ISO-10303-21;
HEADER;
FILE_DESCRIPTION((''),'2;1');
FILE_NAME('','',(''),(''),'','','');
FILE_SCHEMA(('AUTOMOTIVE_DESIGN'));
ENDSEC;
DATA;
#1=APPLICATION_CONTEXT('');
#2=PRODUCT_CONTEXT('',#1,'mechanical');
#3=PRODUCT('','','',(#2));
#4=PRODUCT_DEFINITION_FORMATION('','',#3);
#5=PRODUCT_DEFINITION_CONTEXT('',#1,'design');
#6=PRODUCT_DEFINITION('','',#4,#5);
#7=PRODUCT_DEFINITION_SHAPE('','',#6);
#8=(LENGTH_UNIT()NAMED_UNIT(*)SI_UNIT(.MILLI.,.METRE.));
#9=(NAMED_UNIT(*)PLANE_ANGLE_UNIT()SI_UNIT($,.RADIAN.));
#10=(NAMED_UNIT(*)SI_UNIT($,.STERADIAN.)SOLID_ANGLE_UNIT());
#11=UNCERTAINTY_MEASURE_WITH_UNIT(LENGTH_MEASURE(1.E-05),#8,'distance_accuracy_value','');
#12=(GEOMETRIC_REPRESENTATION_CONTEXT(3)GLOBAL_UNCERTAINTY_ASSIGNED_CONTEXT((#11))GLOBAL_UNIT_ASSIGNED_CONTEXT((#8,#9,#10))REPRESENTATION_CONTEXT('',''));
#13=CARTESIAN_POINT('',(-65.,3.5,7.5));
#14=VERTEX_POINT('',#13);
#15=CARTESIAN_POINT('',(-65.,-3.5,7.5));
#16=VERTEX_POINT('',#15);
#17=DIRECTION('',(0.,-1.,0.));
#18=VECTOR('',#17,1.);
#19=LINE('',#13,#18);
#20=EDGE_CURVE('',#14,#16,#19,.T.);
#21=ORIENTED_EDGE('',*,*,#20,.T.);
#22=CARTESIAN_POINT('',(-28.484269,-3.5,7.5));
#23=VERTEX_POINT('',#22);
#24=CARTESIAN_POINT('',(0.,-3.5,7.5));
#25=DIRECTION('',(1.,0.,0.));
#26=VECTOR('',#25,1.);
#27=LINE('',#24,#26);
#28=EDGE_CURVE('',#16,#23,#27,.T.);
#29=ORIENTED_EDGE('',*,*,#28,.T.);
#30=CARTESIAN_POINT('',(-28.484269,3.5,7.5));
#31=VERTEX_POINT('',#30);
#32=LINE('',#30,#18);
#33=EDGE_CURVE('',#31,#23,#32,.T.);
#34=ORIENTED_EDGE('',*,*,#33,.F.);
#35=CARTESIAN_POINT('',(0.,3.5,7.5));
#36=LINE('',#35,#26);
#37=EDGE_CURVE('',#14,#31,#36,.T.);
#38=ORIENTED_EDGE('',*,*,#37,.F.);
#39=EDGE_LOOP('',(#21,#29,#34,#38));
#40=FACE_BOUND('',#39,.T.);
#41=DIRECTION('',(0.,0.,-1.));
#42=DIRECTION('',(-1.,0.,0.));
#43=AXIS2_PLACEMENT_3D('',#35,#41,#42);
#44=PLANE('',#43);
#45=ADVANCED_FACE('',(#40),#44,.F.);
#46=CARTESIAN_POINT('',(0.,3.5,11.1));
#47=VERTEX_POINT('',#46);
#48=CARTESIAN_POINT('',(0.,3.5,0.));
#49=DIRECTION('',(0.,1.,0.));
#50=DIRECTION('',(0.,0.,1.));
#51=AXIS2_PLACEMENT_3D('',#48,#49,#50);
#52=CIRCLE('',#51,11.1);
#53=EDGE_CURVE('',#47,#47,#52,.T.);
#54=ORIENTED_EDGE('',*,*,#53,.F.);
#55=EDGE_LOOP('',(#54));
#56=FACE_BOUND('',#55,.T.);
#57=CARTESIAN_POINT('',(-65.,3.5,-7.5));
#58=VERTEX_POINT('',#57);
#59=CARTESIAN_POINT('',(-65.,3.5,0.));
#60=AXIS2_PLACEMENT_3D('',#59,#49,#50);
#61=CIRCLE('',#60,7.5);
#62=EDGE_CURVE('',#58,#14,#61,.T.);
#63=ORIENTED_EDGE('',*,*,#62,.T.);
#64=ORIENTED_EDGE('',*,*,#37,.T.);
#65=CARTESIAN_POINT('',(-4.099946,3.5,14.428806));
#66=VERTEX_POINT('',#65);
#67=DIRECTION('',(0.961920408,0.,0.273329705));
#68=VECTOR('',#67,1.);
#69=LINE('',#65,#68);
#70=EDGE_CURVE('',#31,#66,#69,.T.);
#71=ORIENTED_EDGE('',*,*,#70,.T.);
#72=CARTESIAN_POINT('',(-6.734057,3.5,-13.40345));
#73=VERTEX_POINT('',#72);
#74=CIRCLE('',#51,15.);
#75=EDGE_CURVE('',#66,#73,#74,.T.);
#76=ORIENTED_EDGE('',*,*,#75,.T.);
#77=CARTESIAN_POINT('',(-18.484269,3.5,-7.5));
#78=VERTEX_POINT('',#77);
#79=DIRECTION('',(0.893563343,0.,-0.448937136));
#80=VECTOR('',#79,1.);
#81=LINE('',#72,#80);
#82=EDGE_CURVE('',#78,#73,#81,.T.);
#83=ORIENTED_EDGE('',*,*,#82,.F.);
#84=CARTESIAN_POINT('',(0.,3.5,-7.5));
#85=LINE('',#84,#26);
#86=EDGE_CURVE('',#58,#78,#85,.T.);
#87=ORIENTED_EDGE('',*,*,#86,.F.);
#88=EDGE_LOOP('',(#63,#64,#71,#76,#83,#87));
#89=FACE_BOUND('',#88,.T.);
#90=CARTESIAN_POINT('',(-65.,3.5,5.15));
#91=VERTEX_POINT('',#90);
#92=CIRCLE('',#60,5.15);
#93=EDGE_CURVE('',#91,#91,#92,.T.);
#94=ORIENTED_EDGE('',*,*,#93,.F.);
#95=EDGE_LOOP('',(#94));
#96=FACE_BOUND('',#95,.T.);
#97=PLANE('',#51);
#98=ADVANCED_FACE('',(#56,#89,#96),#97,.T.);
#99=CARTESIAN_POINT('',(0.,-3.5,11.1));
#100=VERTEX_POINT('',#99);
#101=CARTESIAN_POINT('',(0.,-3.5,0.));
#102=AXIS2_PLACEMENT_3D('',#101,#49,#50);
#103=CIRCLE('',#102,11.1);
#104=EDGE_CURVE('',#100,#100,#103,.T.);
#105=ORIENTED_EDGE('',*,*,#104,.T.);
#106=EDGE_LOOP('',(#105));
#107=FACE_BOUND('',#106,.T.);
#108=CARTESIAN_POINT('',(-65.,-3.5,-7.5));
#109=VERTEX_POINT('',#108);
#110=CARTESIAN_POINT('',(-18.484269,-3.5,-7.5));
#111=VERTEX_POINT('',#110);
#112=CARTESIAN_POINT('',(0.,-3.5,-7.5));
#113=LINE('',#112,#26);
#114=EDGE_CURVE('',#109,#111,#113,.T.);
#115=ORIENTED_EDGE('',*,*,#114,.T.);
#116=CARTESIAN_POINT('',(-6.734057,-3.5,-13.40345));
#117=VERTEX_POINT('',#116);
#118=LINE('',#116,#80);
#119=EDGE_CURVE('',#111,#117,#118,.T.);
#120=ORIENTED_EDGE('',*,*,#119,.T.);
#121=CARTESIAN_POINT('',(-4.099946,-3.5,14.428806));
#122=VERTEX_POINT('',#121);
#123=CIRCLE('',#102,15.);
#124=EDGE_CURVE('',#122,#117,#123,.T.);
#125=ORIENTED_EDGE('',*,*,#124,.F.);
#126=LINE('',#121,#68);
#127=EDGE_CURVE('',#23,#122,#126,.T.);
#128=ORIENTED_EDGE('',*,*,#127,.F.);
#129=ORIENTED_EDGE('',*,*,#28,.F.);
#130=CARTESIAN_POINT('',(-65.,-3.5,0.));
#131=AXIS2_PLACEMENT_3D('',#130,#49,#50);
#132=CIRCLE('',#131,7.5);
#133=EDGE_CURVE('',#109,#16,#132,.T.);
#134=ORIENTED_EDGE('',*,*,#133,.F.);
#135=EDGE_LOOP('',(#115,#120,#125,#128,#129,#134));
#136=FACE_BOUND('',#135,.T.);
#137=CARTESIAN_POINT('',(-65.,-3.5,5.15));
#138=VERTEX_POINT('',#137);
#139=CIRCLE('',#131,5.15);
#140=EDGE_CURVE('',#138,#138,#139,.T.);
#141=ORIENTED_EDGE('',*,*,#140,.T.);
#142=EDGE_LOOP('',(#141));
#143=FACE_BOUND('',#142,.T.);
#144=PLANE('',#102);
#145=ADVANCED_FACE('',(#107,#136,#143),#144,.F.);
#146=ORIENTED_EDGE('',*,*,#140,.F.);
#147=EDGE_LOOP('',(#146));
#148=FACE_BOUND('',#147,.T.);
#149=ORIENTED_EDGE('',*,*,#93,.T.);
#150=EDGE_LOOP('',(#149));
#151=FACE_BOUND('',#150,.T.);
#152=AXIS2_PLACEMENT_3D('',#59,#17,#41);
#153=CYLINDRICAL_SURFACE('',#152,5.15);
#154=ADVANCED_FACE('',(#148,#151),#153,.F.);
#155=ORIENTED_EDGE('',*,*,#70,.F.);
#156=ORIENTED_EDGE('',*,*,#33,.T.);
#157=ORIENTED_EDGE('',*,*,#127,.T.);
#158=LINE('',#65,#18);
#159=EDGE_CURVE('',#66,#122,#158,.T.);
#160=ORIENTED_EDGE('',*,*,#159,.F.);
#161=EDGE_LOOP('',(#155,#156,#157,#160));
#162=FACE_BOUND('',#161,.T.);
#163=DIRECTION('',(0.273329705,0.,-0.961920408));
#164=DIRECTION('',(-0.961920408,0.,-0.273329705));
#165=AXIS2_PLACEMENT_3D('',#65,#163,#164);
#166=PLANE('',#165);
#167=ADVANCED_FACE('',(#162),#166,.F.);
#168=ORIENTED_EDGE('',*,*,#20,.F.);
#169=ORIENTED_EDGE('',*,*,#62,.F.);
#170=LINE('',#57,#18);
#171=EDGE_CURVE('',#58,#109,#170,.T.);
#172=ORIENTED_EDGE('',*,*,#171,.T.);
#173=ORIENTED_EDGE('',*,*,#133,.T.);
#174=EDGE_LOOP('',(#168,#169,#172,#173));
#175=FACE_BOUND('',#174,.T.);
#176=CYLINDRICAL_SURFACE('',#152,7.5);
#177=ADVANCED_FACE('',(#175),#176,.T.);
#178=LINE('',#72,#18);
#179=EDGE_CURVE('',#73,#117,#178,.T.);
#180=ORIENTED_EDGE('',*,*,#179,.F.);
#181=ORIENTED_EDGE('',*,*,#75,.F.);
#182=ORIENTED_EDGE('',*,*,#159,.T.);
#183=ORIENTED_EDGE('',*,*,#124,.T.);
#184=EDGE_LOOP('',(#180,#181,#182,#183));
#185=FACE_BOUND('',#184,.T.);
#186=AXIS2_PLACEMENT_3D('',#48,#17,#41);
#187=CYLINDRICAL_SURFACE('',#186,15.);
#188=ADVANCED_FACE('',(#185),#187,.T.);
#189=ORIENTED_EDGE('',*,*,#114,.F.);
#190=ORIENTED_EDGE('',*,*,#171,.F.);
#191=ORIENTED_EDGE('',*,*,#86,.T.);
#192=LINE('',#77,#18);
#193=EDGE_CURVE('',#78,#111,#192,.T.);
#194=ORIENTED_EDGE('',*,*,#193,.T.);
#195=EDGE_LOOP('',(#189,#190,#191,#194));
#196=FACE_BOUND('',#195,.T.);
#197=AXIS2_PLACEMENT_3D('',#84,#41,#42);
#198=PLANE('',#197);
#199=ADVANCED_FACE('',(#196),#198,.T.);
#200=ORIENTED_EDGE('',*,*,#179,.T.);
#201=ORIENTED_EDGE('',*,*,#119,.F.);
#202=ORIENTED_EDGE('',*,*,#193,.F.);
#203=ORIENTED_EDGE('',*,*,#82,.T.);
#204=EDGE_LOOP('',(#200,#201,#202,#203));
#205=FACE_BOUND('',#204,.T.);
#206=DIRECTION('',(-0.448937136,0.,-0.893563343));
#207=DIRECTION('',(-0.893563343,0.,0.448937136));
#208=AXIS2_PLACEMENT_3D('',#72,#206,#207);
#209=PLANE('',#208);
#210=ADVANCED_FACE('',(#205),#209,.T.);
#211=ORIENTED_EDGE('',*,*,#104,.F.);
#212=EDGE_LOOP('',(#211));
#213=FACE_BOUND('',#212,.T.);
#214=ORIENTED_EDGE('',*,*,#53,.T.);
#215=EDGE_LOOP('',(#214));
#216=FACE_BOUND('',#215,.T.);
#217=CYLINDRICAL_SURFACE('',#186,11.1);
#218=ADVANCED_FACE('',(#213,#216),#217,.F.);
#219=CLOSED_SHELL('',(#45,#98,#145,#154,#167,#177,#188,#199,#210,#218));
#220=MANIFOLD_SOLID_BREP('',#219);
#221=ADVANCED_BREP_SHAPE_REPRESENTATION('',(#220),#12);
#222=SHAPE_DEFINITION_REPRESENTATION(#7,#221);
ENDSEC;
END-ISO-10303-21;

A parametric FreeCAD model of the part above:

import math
import FreeCAD as App
import Part
import Sketcher
from FreeCAD import Vector
Q = App.Units.Quantity

doc = App.newDocument("Part")
params = doc.addObject("Spreadsheet::Sheet", "Params")
for row, (alias, value) in enumerate([
    ("sketch1_radius", "15 mm"),
    ("sketch1_diameter", "10.3 mm"),
    ("sketch1_diameter2", "22.2 mm"),
    ("sketch1_radius2", "7.5 mm"),
    ("pad1_length", "7 mm"),
], start=1):
    params.set(f"A{row}", alias)
    params.set(f"B{row}", "=" + value)
    params.setAlias(f"B{row}", alias)

body = doc.addObject("PartDesign::Body", "Body")

# Sketch on XZ plane
sketch1 = body.newObject("Sketcher::SketchObject", "Sketch")
sketch1.AttachmentSupport = (doc.getObject("XZ_Plane"), [""])
sketch1.MapMode = "FlatFace"
sketch1.addGeometry([
    Part.LineSegment(Vector(-18, -8, 0), Vector(-65, -8, 0)),  # 0
    Part.ArcOfCircle(Part.Circle(Vector(-65, 0, 0), Vector(0, 0, 1), 8), math.radians(90), math.radians(270)),  # 1
    Part.LineSegment(Vector(-65, 8, 0), Vector(-28, 8, 0)),  # 2
    Part.LineSegment(Vector(-28, 8, 0), Vector(-4, 14, 0)),  # 3
    Part.ArcOfCircle(Part.Circle(Vector(0, 0, 0), Vector(0, 0, 1), 15), math.radians(-117), math.radians(106)),  # 4
    Part.LineSegment(Vector(-7, -13, 0), Vector(-18, -8, 0)),  # 5
    Part.Circle(Vector(-65, 0, 0), Vector(0, 0, 1), 5),  # 6
    Part.Circle(Vector(0, 0, 0), Vector(0, 0, 1), 11),  # 7
], False)
sketch1.addConstraint([
    Sketcher.Constraint("Tangent", 0, 2, 1, 2),
    Sketcher.Constraint("Tangent", 1, 1, 2, 1),
    Sketcher.Constraint("Coincident", 2, 2, 3, 1),
    Sketcher.Constraint("Tangent", 3, 2, 4, 2),
    Sketcher.Constraint("Tangent", 4, 1, 5, 1),
    Sketcher.Constraint("Coincident", 5, 2, 0, 1),
    Sketcher.Constraint("Horizontal", 0),
    Sketcher.Constraint("Horizontal", 2),
    Sketcher.Constraint("Coincident", 4, 3, -1, 1),
    Sketcher.Constraint("Coincident", 7, 3, -1, 1),
    Sketcher.Constraint("Coincident", 6, 3, 1, 3),
    Sketcher.Constraint("PointOnObject", 1, 3, -1),
    Sketcher.Constraint("Radius", 4, Q("15 mm")),
    Sketcher.Constraint("Diameter", 6, Q("10.3 mm")),
    Sketcher.Constraint("Diameter", 7, Q("22.2 mm")),
    Sketcher.Constraint("Radius", 1, Q("7.5 mm")),
    Sketcher.Constraint("DistanceX", 1, 3, -1, 1, Q("65 mm")),
    Sketcher.Constraint("DistanceX", 2, 2, 5, 2, Q("10 mm")),
    Sketcher.Constraint("DistanceX", 0, 2, 0, 1, Q("46.515731 mm")),
])
sketch1.setExpression("Constraints[12]", "Params.sketch1_radius")
sketch1.setExpression("Constraints[13]", "Params.sketch1_diameter")
sketch1.setExpression("Constraints[14]", "Params.sketch1_diameter2")
sketch1.setExpression("Constraints[15]", "Params.sketch1_radius2")
pad1 = body.newObject("PartDesign::Pad", "Pad")
pad1.Profile = sketch1
pad1.setExpression("Length", "Params.pad1_length")
pad1.Midplane = True

doc.recompute()
